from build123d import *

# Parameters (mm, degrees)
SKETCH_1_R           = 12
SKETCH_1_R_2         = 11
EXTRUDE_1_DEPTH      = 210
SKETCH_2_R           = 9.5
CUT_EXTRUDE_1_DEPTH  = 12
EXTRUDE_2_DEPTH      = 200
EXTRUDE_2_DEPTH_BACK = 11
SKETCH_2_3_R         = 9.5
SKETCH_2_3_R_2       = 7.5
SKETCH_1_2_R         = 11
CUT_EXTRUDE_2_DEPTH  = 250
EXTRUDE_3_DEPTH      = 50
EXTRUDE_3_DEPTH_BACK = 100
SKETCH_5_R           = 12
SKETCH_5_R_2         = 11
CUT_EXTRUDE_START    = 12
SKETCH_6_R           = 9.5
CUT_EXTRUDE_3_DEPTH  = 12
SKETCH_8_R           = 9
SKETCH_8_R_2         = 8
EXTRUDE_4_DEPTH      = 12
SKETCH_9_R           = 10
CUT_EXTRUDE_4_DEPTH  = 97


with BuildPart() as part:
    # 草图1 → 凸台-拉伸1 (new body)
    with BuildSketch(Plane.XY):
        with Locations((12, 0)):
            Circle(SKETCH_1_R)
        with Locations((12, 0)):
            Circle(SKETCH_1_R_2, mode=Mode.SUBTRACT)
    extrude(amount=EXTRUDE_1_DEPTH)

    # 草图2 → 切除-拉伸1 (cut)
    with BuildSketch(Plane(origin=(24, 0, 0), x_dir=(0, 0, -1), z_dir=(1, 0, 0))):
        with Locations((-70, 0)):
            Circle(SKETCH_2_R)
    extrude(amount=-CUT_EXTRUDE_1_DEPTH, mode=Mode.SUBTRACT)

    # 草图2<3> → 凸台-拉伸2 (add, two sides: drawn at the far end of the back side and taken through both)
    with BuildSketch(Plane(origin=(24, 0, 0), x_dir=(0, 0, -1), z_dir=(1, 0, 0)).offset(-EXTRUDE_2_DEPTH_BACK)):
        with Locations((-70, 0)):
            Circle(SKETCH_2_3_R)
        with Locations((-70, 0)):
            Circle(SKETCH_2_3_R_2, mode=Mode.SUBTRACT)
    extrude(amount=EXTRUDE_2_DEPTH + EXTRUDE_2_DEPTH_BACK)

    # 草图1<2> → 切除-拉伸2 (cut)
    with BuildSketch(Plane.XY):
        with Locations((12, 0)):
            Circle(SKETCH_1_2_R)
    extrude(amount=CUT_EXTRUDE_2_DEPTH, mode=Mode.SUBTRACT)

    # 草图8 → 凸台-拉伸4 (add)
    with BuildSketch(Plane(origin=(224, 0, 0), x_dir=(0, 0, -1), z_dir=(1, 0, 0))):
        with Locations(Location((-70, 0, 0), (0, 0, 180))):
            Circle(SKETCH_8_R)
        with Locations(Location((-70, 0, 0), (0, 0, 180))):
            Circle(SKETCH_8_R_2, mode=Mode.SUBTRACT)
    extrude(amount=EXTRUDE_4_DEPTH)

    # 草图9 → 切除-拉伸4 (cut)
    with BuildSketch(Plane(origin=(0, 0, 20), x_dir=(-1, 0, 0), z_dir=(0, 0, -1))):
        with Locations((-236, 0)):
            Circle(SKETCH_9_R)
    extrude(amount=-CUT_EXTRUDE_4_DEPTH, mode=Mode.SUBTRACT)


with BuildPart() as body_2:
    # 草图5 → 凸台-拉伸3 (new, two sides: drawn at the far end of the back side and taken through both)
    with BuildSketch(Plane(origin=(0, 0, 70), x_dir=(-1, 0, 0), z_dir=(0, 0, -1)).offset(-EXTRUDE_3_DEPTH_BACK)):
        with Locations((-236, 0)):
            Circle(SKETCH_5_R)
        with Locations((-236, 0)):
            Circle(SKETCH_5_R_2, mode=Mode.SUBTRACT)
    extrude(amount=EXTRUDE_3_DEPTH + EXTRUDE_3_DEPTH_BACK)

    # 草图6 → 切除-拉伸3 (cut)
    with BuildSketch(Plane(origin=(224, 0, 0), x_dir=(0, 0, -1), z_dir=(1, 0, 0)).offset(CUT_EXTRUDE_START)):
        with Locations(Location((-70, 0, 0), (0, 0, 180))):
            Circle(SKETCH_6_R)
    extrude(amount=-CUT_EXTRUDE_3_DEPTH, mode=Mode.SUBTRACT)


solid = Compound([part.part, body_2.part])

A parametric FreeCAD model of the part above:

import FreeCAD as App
import Part
import Sketcher
from FreeCAD import Vector
Q = App.Units.Quantity

doc = App.newDocument("Part")
body = doc.addObject("PartDesign::Body", "Body")

# Sketch on XY plane
sketch1 = body.newObject("Sketcher::SketchObject", "Sketch")
sketch1.AttachmentSupport = (doc.getObject("XY_Plane"), [""])
sketch1.MapMode = "FlatFace"
sketch1.addGeometry([
    Part.Circle(Vector(12, 0, 0), Vector(0, 0, 1), 12),
    Part.Circle(Vector(12, 0, 0), Vector(0, 0, 1), 11),
], False)
sketch1.addConstraint([
    Sketcher.Constraint("Coincident", 1, 3, 0, 3),
    Sketcher.Constraint("PointOnObject", 0, 3, -1),
    Sketcher.Constraint("Diameter", 0, Q("24 mm")),
    Sketcher.Constraint("Diameter", 1, Q("22 mm")),
    Sketcher.Constraint("DistanceX", -1, 1, 0, 3, Q("12 mm")),
])
pad1 = body.newObject("PartDesign::Pad", "Pad")
pad1.Profile = sketch1
pad1.Length = 210

# Sketch on YZ plane
sketch2 = body.newObject("Sketcher::SketchObject", "Sketch001")
sketch2.AttachmentSupport = (doc.getObject("YZ_Plane"), [""])
sketch2.MapMode = "FlatFace"
sketch2.AttachmentOffset = App.Placement(Vector(0, 0, 24), App.Rotation())
sketch2.addGeometry(Part.Circle(Vector(0, 70, 0), Vector(0, 0, 1), 9.5), False)
sketch2.addConstraint([
    Sketcher.Constraint("PointOnObject", 0, 3, -2),
    Sketcher.Constraint("Diameter", 0, Q("19 mm")),
    Sketcher.Constraint("DistanceY", -1, 1, 0, 3, Q("70 mm")),
])
pocket1 = body.newObject("PartDesign::Pocket", "Pocket")
pocket1.Profile = sketch2
pocket1.Length = 12

# Sketch on YZ plane
sketch3 = body.newObject("Sketcher::SketchObject", "Sketch002")
sketch3.AttachmentSupport = (doc.getObject("YZ_Plane"), [""])
sketch3.MapMode = "FlatFace"
sketch3.AttachmentOffset = App.Placement(Vector(0, 0, 24), App.Rotation())
sketch3.addGeometry([
    Part.Circle(Vector(0, 70, 0), Vector(0, 0, 1), 9.5),
    Part.Circle(Vector(0, 70, 0), Vector(0, 0, 1), 7.5),
], False)
sketch3.addConstraint([
    Sketcher.Constraint("Coincident", 1, 3, 0, 3),
    Sketcher.Constraint("PointOnObject", 0, 3, -2),
    Sketcher.Constraint("Diameter", 0, Q("19 mm")),
    Sketcher.Constraint("Diameter", 1, Q("15 mm")),
    Sketcher.Constraint("DistanceY", -1, 1, 0, 3, Q("70 mm")),
])
pad2 = body.newObject("PartDesign::Pad", "Pad001")
pad2.Profile = sketch3
pad2.Type = "TwoLengths"
pad2.Length = 200
pad2.Length2 = 11

# Sketch on XY plane
sketch4 = body.newObject("Sketcher::SketchObject", "Sketch003")
sketch4.AttachmentSupport = (doc.getObject("XY_Plane"), [""])
sketch4.MapMode = "FlatFace"
sketch4.addGeometry(Part.Circle(Vector(12, 0, 0), Vector(0, 0, 1), 11), False)
sketch4.addConstraint([
    Sketcher.Constraint("PointOnObject", 0, 3, -1),
    Sketcher.Constraint("Diameter", 0, Q("22 mm")),
    Sketcher.Constraint("DistanceX", -1, 1, 0, 3, Q("12 mm")),
])
pocket2 = body.newObject("PartDesign::Pocket", "Pocket001")
pocket2.Profile = sketch4
pocket2.Length = 250
pocket2.Reversed = True

# Sketch on YZ plane
sketch5 = body.newObject("Sketcher::SketchObject", "Sketch004")
sketch5.AttachmentSupport = (doc.getObject("YZ_Plane"), [""])
sketch5.MapMode = "FlatFace"
sketch5.AttachmentOffset = App.Placement(Vector(0, 0, 224), App.Rotation())
sketch5.addGeometry([
    Part.Circle(Vector(0, 70, 0), Vector(0, 0, 1), 9),
    Part.Circle(Vector(0, 70, 0), Vector(0, 0, 1), 8),
], False)
sketch5.addConstraint([
    Sketcher.Constraint("Coincident", 1, 3, 0, 3),
    Sketcher.Constraint("PointOnObject", 0, 3, -2),
    Sketcher.Constraint("Diameter", 0, Q("18 mm")),
    Sketcher.Constraint("Diameter", 1, Q("16 mm")),
    Sketcher.Constraint("DistanceY", -1, 1, 0, 3, Q("70 mm")),
])
pad3 = body.newObject("PartDesign::Pad", "Pad002")
pad3.Profile = sketch5
pad3.Length = 12

# Sketch on XY plane
sketch6 = body.newObject("Sketcher::SketchObject", "Sketch005")
sketch6.AttachmentSupport = (doc.getObject("XY_Plane"), [""])
sketch6.MapMode = "FlatFace"
sketch6.AttachmentOffset = App.Placement(Vector(0, 0, 20), App.Rotation())
sketch6.addGeometry(Part.Circle(Vector(236, 0, 0), Vector(0, 0, 1), 10), False)
sketch6.addConstraint([
    Sketcher.Constraint("PointOnObject", 0, 3, -1),
    Sketcher.Constraint("Diameter", 0, Q("20 mm")),
    Sketcher.Constraint("DistanceX", -1, 1, 0, 3, Q("236 mm")),
])
pocket3 = body.newObject("PartDesign::Pocket", "Pocket002")
pocket3.Profile = sketch6
pocket3.Length = 97
pocket3.Reversed = True
body2 = doc.addObject("PartDesign::Body", "Body001")

# Sketch on XY plane
sketch7 = body2.newObject("Sketcher::SketchObject", "Sketch006")
sketch7.AttachmentSupport = (doc.getObject("XY_Plane001"), [""])
sketch7.MapMode = "FlatFace"
sketch7.AttachmentOffset = App.Placement(Vector(0, 0, 70), App.Rotation())
sketch7.addGeometry([
    Part.Circle(Vector(236, 0, 0), Vector(0, 0, 1), 12),
    Part.Circle(Vector(236, 0, 0), Vector(0, 0, 1), 11),
], False)
sketch7.addConstraint([
    Sketcher.Constraint("Coincident", 1, 3, 0, 3),
    Sketcher.Constraint("PointOnObject", 0, 3, -1),
    Sketcher.Constraint("Diameter", 0, Q("24 mm")),
    Sketcher.Constraint("Diameter", 1, Q("22 mm")),
    Sketcher.Constraint("DistanceX", -1, 1, 0, 3, Q("236 mm")),
])
pad4 = body2.newObject("PartDesign::Pad", "Pad003")
pad4.Profile = sketch7
pad4.Type = "TwoLengths"
pad4.Length = 50
pad4.Length2 = 100
pad4.Reversed = True

# Sketch on YZ plane
sketch8 = body2.newObject("Sketcher::SketchObject", "Sketch007")
sketch8.AttachmentSupport = (doc.getObject("YZ_Plane001"), [""])
sketch8.MapMode = "FlatFace"
sketch8.AttachmentOffset = App.Placement(Vector(0, 0, 236), App.Rotation())
sketch8.addGeometry(Part.Circle(Vector(0, 70, 0), Vector(0, 0, 1), 9.5), False)
sketch8.addConstraint([
    Sketcher.Constraint("PointOnObject", 0, 3, -2),
    Sketcher.Constraint("Diameter", 0, Q("19 mm")),
    Sketcher.Constraint("DistanceY", -1, 1, 0, 3, Q("70 mm")),
])
pocket4 = body2.newObject("PartDesign::Pocket", "Pocket003")
pocket4.Profile = sketch8
pocket4.Length = 12

doc.recompute()
